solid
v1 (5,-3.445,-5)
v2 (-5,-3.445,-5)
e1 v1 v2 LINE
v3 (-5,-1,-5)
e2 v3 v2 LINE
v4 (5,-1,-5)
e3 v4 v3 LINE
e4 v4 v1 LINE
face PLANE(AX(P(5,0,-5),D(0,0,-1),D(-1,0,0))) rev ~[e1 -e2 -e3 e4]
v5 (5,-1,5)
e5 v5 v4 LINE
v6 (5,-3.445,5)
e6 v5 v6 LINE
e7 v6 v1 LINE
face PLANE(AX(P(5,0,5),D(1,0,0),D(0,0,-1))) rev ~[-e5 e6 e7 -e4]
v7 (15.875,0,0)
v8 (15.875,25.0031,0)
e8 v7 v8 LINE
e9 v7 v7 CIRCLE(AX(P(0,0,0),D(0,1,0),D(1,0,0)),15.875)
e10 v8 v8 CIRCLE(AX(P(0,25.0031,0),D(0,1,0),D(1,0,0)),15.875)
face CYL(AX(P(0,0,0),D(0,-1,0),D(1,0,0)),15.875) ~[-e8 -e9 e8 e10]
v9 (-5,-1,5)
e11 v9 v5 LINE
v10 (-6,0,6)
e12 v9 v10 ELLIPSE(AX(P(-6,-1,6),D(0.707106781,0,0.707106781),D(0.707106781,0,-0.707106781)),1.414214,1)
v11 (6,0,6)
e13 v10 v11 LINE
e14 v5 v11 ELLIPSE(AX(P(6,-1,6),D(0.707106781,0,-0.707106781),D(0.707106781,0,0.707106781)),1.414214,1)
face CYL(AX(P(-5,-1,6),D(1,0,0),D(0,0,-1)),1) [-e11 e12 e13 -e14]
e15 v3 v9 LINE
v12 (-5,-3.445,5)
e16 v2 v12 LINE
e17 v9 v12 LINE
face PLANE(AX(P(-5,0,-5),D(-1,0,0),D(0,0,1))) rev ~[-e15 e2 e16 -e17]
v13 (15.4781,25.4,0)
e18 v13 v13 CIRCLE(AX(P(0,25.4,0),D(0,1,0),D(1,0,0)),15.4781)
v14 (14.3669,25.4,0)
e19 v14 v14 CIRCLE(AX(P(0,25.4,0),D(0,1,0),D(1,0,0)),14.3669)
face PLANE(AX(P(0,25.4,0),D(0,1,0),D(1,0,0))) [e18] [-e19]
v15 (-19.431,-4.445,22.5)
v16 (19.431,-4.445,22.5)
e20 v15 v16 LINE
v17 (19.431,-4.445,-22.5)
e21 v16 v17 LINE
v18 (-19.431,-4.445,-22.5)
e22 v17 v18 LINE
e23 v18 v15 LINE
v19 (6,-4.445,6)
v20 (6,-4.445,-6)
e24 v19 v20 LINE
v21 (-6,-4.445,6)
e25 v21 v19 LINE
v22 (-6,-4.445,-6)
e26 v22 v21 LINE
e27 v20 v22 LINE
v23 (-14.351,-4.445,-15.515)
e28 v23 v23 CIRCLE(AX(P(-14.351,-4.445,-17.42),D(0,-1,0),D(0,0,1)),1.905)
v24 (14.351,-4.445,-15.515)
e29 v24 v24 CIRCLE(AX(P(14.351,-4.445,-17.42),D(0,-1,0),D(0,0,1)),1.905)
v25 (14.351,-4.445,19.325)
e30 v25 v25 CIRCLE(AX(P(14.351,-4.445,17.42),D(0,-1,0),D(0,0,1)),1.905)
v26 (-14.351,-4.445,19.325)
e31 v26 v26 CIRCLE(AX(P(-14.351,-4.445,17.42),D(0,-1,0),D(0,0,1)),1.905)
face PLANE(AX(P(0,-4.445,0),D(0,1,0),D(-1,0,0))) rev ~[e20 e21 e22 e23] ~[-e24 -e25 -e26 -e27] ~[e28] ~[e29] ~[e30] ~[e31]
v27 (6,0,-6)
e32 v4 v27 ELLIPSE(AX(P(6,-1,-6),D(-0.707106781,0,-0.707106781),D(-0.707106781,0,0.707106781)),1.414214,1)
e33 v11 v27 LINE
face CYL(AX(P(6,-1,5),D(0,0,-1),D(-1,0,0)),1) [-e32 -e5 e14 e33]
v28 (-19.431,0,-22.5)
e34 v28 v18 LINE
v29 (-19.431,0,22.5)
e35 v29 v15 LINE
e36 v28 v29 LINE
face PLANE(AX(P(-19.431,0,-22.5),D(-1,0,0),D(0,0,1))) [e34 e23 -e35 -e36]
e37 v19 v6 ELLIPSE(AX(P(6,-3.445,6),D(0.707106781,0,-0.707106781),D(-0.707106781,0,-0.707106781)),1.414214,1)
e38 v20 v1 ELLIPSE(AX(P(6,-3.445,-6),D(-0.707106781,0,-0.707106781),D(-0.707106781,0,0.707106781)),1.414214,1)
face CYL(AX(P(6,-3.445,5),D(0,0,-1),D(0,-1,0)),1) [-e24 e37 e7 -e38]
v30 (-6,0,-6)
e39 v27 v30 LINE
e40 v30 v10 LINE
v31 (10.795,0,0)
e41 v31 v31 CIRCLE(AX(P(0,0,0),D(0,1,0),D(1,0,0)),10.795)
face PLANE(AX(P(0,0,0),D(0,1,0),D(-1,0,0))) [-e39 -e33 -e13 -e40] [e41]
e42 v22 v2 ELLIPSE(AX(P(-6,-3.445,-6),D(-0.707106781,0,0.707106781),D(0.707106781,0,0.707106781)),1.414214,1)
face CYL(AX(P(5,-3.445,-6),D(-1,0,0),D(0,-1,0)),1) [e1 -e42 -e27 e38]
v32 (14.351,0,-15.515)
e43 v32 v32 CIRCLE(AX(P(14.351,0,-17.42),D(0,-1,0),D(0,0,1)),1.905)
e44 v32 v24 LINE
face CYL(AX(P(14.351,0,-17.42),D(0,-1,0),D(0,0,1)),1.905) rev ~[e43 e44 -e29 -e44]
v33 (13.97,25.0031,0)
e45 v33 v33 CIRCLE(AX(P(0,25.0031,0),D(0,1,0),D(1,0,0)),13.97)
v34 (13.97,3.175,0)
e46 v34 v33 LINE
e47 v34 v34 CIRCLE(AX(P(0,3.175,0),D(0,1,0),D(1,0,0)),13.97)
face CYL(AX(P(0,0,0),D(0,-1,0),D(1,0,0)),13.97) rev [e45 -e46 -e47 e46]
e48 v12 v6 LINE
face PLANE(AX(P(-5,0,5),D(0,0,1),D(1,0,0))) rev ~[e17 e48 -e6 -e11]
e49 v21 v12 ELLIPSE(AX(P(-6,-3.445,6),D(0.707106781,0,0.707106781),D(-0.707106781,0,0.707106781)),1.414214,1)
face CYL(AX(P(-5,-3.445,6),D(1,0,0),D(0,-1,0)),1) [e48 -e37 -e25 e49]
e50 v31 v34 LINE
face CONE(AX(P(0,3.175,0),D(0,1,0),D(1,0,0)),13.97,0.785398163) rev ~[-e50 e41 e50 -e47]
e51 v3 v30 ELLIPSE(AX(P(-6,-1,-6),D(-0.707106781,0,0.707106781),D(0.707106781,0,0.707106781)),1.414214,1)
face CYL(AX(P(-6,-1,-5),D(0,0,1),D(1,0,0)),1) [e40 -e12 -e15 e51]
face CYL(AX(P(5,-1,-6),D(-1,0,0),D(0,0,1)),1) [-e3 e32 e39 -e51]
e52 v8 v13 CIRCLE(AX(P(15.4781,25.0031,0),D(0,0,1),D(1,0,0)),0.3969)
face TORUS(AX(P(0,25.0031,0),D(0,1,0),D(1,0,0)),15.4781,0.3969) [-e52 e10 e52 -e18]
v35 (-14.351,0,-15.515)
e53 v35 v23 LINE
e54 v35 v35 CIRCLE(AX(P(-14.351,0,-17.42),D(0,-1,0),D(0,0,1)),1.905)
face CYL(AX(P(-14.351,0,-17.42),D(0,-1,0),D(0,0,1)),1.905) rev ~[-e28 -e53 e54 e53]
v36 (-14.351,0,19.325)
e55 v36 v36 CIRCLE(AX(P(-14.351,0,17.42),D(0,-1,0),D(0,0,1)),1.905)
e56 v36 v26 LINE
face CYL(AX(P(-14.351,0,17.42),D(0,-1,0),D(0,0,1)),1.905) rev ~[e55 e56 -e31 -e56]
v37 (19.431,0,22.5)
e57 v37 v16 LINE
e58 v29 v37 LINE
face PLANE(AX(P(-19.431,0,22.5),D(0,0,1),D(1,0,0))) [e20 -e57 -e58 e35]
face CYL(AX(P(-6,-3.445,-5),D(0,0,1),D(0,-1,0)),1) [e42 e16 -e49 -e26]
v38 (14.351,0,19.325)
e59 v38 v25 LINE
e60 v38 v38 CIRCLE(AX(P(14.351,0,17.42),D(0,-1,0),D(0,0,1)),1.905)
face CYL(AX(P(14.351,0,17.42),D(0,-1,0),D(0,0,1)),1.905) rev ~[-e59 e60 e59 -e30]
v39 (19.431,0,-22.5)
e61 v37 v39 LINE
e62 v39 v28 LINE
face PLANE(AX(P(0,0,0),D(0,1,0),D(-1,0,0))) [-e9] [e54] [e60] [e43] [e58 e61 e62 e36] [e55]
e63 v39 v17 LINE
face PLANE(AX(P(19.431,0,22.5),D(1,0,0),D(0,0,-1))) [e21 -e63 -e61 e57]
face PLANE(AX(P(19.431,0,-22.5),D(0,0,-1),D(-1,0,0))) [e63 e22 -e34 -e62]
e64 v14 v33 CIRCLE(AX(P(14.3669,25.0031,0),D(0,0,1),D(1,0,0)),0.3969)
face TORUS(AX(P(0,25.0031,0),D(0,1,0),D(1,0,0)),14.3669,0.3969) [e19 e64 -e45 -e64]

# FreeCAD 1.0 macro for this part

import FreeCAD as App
import Part
import Sketcher

V = App.Vector
Q = App.Units.Quantity


def edges_at(feature, points):
    """Names of the edges that pass closest to the given points."""
    edges = feature.Shape.Edges
    near = lambda p: min(range(len(edges)), key=lambda i: edges[i].distToShape(Part.Vertex(*p))[0])
    return sorted({f"Edge{near(p) + 1}" for p in points})


def add_polygon(sketch, points):
    """Adds a closed chain of lines whose ends are joined by coincident constraints."""
    first, n = sketch.GeometryCount, len(points)
    for a, b in zip(points, points[1:] + points[:1]):
        sketch.addGeometry(Part.LineSegment(App.Vector(*a, 0), App.Vector(*b, 0)), False)
    for i in range(n):
        sketch.addConstraint(Sketcher.Constraint("Coincident", first + i, 2, first + (i + 1) % n, 1))

doc = App.newDocument("Part")
params = doc.addObject("Spreadsheet::Sheet", "Params")
for row, (alias, value) in enumerate([
    ("sketch1_width", "1.53 in"),
    ("pad1_length", "0.175 in"),
    ("sketch3_diameter", "1.1 in"),
    ("sketch3_diameter2", "1.25 in"),
    ("pad2_length", "1 in"),
    ("sketch4_diameter", "0.15 in"),
    ("hole_diameter", "0.15 in"),
    ("fillet_radius", "0.015626 in"),
    ("fillet2_radius", "1 mm"),
    ("fillet3_radius", "1 mm"),
    ("chamfer_size", "0.125 in"),
], start=1):
    params.set(f"A{row}", alias)
    params.set(f"B{row}", "=" + value)
    params.setAlias(f"B{row}", alias)

body = doc.addObject("PartDesign::Body", "Body")

# Sketch on XZ plane
sketch1 = body.newObject("Sketcher::SketchObject", "Sketch")
sketch1.AttachmentSupport = (doc.getObject("XZ_Plane"), [""])
sketch1.MapMode = "FlatFace"
add_polygon(sketch1, [(-19.431, -22.5), (-19.431, 22.5), (19.431, 22.5), (19.431, -22.5)])  # lines 0-3
sketch1.addConstraint([
    Sketcher.Constraint("Vertical", 0),
    Sketcher.Constraint("Horizontal", 1),
    Sketcher.Constraint("Vertical", 2),
    Sketcher.Constraint("Horizontal", 3),
    Sketcher.Constraint("Symmetric", 0, 2, 2, 2, -1, 1),
    Sketcher.Constraint("DistanceX", 1, 1, 1, 2, Q("1.53 in")),
    Sketcher.Constraint("DistanceY", 0, 1, 0, 2, 45.0),
])
sketch1.setExpression("Constraints[9]", "Params.sketch1_width")
pad1 = body.newObject("PartDesign::Pad", "Pad")
pad1.Profile = sketch1
pad1.setExpression("Length", "Params.pad1_length")

# Sketch on XZ plane
sketch2 = body.newObject("Sketcher::SketchObject", "Sketch001")
sketch2.AttachmentSupport = (doc.getObject("XZ_Plane"), [""])
sketch2.MapMode = "FlatFace"
add_polygon(sketch2, [(-5, -5), (-5, 5), (5, 5), (5, -5)])  # lines 0-3
sketch2.addConstraint([
    Sketcher.Constraint("Vertical", 0),
    Sketcher.Constraint("Horizontal", 1),
    Sketcher.Constraint("Vertical", 2),
    Sketcher.Constraint("Horizontal", 3),
    Sketcher.Constraint("Symmetric", 0, 2, 2, 2, -1, 1),
    Sketcher.Constraint("Equal", 3, 0),
    Sketcher.Constraint("DistanceX", 1, 1, 1, 2, Q("0.3937 in")),
])
pocket1 = body.newObject("PartDesign::Pocket", "Pocket")
pocket1.Profile = sketch2
pocket1.Type = "ThroughAll"
pocket1.Reversed = True

# Sketch on XZ plane
sketch3 = body.newObject("Sketcher::SketchObject", "Sketch002")
sketch3.AttachmentSupport = (doc.getObject("XZ_Plane"), [""])
sketch3.MapMode = "FlatFace"
sketch3.addGeometry([
    Part.Circle(V(0, 0, 0), V(0, 0, 1), 15.875),
    Part.Circle(V(0, 0, 0), V(0, 0, 1), 13.97),
], False)
sketch3.addConstraint([
    Sketcher.Constraint("Coincident", 0, 3, -1, 1),
    Sketcher.Constraint("Coincident", 1, 3, -1, 1),
    Sketcher.Constraint("Diameter", 1, Q("1.1 in")),
    Sketcher.Constraint("Diameter", 0, Q("1.25 in")),
])
sketch3.setExpression("Constraints[2]", "Params.sketch3_diameter")
sketch3.setExpression("Constraints[3]", "Params.sketch3_diameter2")
pad2 = body.newObject("PartDesign::Pad", "Pad001")
pad2.Profile = sketch3
pad2.setExpression("Length", "Params.pad2_length")
pad2.Reversed = True

# Sketch on XZ plane
sketch4 = body.newObject("Sketcher::SketchObject", "Sketch003")
sketch4.AttachmentSupport = (doc.getObject("XZ_Plane"), [""])
sketch4.MapMode = "FlatFace"
sketch4.addGeometry([
    Part.Circle(V(-14.351, -17.42, 0), V(0, 0, 1), 1.905),
    Part.Circle(V(-14.351, 17.42, 0), V(0, 0, 1), 1.905),
    Part.Circle(V(14.351, 17.42, 0), V(0, 0, 1), 1.905),
    Part.Circle(V(14.351, -17.42, 0), V(0, 0, 1), 1.905),
], False)
sketch4.addConstraint([
    Sketcher.Constraint("Equal", 0, 1),
    Sketcher.Constraint("Equal", 1, 2),
    Sketcher.Constraint("Equal", 2, 3),
    Sketcher.Constraint("Symmetric", 0, 3, 2, 3, -1, 1),
    Sketcher.Constraint("Symmetric", 1, 3, 3, 3, -1, 1),
    Sketcher.Constraint("Symmetric", 1, 3, 2, 3, -2),
    Sketcher.Constraint("Diameter", 0, Q("0.15 in")),
    Sketcher.Constraint("DistanceX", 1, 3, 2, 3, Q("1.13 in")),
    Sketcher.Constraint("DistanceY", 0, 3, -1, 1, 17.42),
])
sketch4.setExpression("Constraints[6]", "Params.sketch4_diameter")
doc.recompute()
hole = body.newObject("PartDesign::Hole", "Hole")
hole.Profile = sketch4
hole.ThreadType = "None"
hole.setExpression("Diameter", "Params.hole_diameter")
hole.DepthType = "ThroughAll"
hole.Reversed = True
doc.recompute()

fillet = body.newObject("PartDesign::Fillet", "Fillet")
fillet.Base = (hole, edges_at(hole, [(-15.875, 25.4, 0), (-13.97, 25.4, 0)]))
fillet.setExpression("Radius", "Params.fillet_radius")
doc.recompute()

fillet2 = body.newObject("PartDesign::Fillet", "Fillet001")
fillet2.Base = (fillet, edges_at(fillet, [
    (-5, -4.445, 0),
    (0, -4.445, -5),
    (5, -4.445, 0),
    (0, -4.445, 5),
]))
fillet2.setExpression("Radius", "Params.fillet2_radius")
doc.recompute()

fillet3 = body.newObject("PartDesign::Fillet", "Fillet002")
fillet3.Base = (fillet2, edges_at(fillet2, [
    (0, 0, 5),
    (-5, 0, 0),
    (0, 0, -5),
    (5, 0, 0),
]))
fillet3.setExpression("Radius", "Params.fillet3_radius")
doc.recompute()

chamfer = body.newObject("PartDesign::Chamfer", "Chamfer")
chamfer.Base = (fillet3, edges_at(fillet3, [(-13.97, 0, 0)]))
chamfer.setExpression("Size", "Params.chamfer_size")

doc.recompute()
